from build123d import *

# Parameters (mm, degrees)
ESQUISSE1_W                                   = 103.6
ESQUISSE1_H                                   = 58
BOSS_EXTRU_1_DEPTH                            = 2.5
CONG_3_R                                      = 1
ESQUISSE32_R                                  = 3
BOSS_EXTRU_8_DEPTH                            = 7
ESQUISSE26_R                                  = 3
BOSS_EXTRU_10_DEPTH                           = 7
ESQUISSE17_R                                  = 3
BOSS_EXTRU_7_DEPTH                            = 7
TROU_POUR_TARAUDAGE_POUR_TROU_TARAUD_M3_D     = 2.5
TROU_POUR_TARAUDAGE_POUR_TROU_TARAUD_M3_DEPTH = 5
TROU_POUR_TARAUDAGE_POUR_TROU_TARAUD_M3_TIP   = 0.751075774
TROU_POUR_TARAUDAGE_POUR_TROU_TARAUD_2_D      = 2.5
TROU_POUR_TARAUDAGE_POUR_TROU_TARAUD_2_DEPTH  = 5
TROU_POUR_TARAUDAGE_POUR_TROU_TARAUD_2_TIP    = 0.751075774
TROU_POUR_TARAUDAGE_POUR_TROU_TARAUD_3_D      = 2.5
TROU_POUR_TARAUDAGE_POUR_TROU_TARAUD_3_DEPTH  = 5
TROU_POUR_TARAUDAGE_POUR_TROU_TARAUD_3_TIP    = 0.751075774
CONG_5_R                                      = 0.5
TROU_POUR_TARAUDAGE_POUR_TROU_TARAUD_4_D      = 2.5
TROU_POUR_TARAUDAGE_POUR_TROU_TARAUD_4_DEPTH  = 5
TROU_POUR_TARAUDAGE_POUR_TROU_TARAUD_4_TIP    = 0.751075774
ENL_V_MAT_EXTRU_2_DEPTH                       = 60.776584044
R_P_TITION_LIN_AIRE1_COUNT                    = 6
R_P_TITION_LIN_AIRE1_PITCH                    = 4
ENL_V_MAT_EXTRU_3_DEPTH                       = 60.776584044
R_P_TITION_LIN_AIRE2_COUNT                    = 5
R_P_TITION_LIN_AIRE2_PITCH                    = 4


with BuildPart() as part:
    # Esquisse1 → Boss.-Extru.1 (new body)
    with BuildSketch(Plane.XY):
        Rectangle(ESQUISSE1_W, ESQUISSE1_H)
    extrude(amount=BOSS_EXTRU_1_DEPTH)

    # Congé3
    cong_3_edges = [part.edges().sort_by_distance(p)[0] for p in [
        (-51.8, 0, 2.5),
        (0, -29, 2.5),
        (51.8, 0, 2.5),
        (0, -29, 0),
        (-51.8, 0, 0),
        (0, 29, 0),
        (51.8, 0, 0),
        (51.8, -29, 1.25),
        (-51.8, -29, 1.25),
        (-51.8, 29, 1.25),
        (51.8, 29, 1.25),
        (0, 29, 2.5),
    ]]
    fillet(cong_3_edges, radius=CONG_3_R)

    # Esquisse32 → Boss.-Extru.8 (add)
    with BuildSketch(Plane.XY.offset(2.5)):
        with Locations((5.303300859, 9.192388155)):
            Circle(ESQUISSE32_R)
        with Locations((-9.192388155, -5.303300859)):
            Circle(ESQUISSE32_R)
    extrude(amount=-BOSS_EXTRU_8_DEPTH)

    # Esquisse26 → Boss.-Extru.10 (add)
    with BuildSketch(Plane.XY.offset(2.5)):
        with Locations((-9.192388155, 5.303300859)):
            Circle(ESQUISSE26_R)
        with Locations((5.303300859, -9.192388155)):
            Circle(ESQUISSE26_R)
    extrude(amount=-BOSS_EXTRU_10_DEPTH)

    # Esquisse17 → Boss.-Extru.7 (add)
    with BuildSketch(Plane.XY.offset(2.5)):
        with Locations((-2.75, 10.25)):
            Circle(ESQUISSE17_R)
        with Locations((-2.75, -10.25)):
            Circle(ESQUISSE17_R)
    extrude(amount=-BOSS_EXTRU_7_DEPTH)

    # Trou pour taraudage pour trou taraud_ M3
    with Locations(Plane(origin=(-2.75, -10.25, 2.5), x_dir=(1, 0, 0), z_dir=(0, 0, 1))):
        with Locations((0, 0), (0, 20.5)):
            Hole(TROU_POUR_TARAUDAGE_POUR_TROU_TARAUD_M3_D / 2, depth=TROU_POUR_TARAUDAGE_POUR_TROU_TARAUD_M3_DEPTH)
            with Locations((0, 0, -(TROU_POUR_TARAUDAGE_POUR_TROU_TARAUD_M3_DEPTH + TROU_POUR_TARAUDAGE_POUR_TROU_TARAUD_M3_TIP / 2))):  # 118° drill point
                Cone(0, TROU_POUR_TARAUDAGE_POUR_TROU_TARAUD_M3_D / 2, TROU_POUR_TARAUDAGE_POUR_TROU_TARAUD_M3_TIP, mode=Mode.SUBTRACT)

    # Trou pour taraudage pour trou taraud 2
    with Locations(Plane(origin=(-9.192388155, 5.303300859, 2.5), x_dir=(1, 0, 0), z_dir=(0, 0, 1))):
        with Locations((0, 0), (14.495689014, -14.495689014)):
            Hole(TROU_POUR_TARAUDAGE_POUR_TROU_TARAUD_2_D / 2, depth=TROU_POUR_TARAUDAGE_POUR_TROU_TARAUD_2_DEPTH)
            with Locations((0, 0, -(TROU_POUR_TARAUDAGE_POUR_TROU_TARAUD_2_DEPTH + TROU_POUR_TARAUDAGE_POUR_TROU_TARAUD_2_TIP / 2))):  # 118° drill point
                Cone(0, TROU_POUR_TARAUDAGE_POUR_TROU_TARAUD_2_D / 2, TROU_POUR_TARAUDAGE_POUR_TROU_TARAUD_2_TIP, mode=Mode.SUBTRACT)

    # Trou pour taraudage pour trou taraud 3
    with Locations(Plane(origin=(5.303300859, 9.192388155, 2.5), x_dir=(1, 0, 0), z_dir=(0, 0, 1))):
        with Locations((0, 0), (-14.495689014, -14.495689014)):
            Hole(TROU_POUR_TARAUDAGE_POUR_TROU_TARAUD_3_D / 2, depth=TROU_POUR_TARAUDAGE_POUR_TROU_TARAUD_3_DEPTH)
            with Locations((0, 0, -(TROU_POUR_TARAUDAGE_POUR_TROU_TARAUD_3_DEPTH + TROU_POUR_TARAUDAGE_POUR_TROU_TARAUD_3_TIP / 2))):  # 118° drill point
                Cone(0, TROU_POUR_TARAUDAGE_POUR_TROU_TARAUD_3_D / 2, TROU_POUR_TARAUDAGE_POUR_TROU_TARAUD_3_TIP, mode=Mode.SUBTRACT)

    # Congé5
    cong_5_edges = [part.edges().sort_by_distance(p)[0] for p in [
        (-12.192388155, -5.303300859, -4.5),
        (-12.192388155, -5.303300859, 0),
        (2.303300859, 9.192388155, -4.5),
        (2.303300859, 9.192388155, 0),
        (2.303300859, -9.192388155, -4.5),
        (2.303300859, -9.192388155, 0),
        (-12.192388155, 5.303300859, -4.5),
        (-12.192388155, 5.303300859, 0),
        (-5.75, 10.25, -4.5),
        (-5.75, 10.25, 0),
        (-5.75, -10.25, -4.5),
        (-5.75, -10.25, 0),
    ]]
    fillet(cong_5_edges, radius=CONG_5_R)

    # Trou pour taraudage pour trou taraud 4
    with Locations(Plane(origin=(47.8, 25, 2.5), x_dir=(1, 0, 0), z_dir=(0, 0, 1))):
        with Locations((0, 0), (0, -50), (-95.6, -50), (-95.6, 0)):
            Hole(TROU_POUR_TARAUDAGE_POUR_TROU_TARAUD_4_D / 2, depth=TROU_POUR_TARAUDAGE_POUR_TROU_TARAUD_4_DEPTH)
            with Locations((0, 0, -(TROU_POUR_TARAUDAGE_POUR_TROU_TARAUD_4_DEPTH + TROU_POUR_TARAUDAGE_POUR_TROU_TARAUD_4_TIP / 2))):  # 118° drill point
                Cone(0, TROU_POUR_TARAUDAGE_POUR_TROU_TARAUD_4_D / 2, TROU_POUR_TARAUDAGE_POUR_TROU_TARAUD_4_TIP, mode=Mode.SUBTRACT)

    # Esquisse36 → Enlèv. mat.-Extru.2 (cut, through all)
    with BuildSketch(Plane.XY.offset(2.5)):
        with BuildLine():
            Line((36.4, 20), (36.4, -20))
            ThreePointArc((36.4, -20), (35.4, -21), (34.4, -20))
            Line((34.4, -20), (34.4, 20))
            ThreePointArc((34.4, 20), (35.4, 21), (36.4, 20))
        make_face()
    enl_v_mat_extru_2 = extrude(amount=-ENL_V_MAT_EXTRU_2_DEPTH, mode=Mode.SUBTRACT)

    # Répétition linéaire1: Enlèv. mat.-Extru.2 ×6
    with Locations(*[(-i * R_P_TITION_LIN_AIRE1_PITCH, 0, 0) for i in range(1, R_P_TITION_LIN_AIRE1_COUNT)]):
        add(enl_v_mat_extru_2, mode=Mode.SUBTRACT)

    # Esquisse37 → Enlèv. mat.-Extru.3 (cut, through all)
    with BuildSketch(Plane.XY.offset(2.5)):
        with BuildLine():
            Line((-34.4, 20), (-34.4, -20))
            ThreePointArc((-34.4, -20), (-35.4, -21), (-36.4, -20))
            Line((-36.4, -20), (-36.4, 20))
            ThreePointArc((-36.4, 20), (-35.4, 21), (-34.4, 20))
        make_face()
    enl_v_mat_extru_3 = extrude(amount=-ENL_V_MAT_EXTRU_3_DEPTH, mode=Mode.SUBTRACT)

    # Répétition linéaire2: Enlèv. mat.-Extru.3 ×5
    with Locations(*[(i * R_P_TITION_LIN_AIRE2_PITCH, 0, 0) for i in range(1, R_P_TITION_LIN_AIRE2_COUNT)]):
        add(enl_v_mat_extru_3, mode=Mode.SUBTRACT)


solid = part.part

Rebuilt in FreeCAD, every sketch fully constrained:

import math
import FreeCAD as App
import Part
import Sketcher
from FreeCAD import Vector
Q = App.Units.Quantity


def edges_at(feature, points):
    """Names of the edges that pass closest to the given points."""
    edges = feature.Shape.Edges
    near = lambda p: min(range(len(edges)), key=lambda i: edges[i].distToShape(Part.Vertex(*p))[0])
    return sorted({f"Edge{near(p) + 1}" for p in points})

doc = App.newDocument("Part")
params = doc.addObject("Spreadsheet::Sheet", "Params")
for row, (alias, value) in enumerate([
    ("sketch1_height", "58 mm"),
    ("sketch1_width", "103.6 mm"),
    ("pad1_length", "2.5 mm"),
    ("fillet_radius", "1 mm"),
    ("sketch2_diameter", "6 mm"),
    ("pad2_length", "7 mm"),
    ("sketch3_diameter", "6 mm"),
    ("pad3_length", "7 mm"),
    ("sketch4_diameter", "6 mm"),
    ("pad4_length", "7 mm"),
    ("sketch5_diameter", "2.5 mm"),
    ("hole_diameter", "2.5 mm"),
    ("hole_depth", "5 mm"),
    ("sketch6_diameter", "2.5 mm"),
    ("hole2_diameter", "2.5 mm"),
    ("hole2_depth", "5 mm"),
    ("sketch7_diameter", "2.5 mm"),
    ("hole3_diameter", "2.5 mm"),
    ("hole3_depth", "5 mm"),
    ("fillet2_radius", "0.5 mm"),
    ("sketch8_diameter", "2.5 mm"),
    ("hole4_diameter", "2.5 mm"),
    ("hole4_depth", "5 mm"),
    ("sketch9_radius", "1 mm"),
    ("sketch9_height", "40 mm"),
    ("linearpattern_pitch", "4 mm"),
    ("sketch10_radius", "1 mm"),
    ("sketch10_height", "40 mm"),
    ("linearpattern2_pitch", "4 mm"),
], start=1):
    params.set(f"A{row}", alias)
    params.set(f"B{row}", "=" + value)
    params.setAlias(f"B{row}", alias)

body = doc.addObject("PartDesign::Body", "Body")

sketch1 = body.newObject("Sketcher::SketchObject", "Sketch")
sketch1.AttachmentSupport = (doc.getObject("XY_Plane"), [""])
sketch1.MapMode = "FlatFace"
sketch1.addGeometry([
    Part.LineSegment(Vector(-52, 29, 0), Vector(-52, -29, 0)),
    Part.LineSegment(Vector(-52, -29, 0), Vector(52, -29, 0)),
    Part.LineSegment(Vector(52, -29, 0), Vector(52, 29, 0)),
    Part.LineSegment(Vector(52, 29, 0), Vector(-52, 29, 0)),
], False)
sketch1.addConstraint([
    Sketcher.Constraint("Coincident", 0, 2, 1, 1),
    Sketcher.Constraint("Coincident", 1, 2, 2, 1),
    Sketcher.Constraint("Coincident", 2, 2, 3, 1),
    Sketcher.Constraint("Coincident", 3, 2, 0, 1),
    Sketcher.Constraint("Vertical", 0),
    Sketcher.Constraint("Horizontal", 1),
    Sketcher.Constraint("Vertical", 2),
    Sketcher.Constraint("Horizontal", 3),
    Sketcher.Constraint("Symmetric", 0, 2, 2, 2, -1, 1),
    Sketcher.Constraint("DistanceY", 0, 2, 0, 1, Q("58 mm")),
    Sketcher.Constraint("DistanceX", 1, 1, 1, 2, Q("103.6 mm")),
])
sketch1.setExpression("Constraints[9]", "Params.sketch1_height")
sketch1.setExpression("Constraints[10]", "Params.sketch1_width")
pad1 = body.newObject("PartDesign::Pad", "Pad")
pad1.Profile = sketch1
pad1.setExpression("Length", "Params.pad1_length")
doc.recompute()

fillet = body.newObject("PartDesign::Fillet", "Fillet")
fillet.Base = (pad1, ["Edge1"])
fillet.UseAllEdges = True
fillet.setExpression("Radius", "Params.fillet_radius")

sketch2 = body.newObject("Sketcher::SketchObject", "Sketch001")
sketch2.AttachmentSupport = (doc.getObject("XY_Plane"), [""])
sketch2.MapMode = "FlatFace"
sketch2.AttachmentOffset = App.Placement(Vector(0, 0, 2.5), App.Rotation())
sketch2.addGeometry([
    Part.Circle(Vector(5.3, 9.2, 0), Vector(0, 0, 1), 3),
    Part.Circle(Vector(-9.2, -5.3, 0), Vector(0, 0, 1), 3),
], False)
sketch2.addConstraint([
    Sketcher.Constraint("Equal", 0, 1),
    Sketcher.Constraint("Diameter", 0, Q("6 mm")),
    Sketcher.Constraint("DistanceX", -1, 1, 0, 3, Q("5.303301 mm")),
    Sketcher.Constraint("DistanceY", 1, 3, -1, 1, Q("5.303301 mm")),
    Sketcher.Constraint("DistanceY", -1, 1, 0, 3, Q("9.192388 mm")),
    Sketcher.Constraint("DistanceX", 1, 3, -1, 1, Q("9.192388 mm")),
])
sketch2.setExpression("Constraints[1]", "Params.sketch2_diameter")
pad2 = body.newObject("PartDesign::Pad", "Pad001")
pad2.Profile = sketch2
pad2.setExpression("Length", "Params.pad2_length")
pad2.Reversed = True

sketch3 = body.newObject("Sketcher::SketchObject", "Sketch002")
sketch3.AttachmentSupport = (doc.getObject("XY_Plane"), [""])
sketch3.MapMode = "FlatFace"
sketch3.AttachmentOffset = App.Placement(Vector(0, 0, 2.5), App.Rotation())
sketch3.addGeometry([
    Part.Circle(Vector(-9.2, 5.3, 0), Vector(0, 0, 1), 3),
    Part.Circle(Vector(5.3, -9.2, 0), Vector(0, 0, 1), 3),
], False)
sketch3.addConstraint([
    Sketcher.Constraint("Equal", 0, 1),
    Sketcher.Constraint("Diameter", 0, Q("6 mm")),
    Sketcher.Constraint("DistanceY", -1, 1, 0, 3, Q("5.303301 mm")),
    Sketcher.Constraint("DistanceX", -1, 1, 1, 3, Q("5.303301 mm")),
    Sketcher.Constraint("DistanceX", 0, 3, -1, 1, Q("9.192388 mm")),
    Sketcher.Constraint("DistanceY", 1, 3, -1, 1, Q("9.192388 mm")),
])
sketch3.setExpression("Constraints[1]", "Params.sketch3_diameter")
pad3 = body.newObject("PartDesign::Pad", "Pad002")
pad3.Profile = sketch3
pad3.setExpression("Length", "Params.pad3_length")
pad3.Reversed = True

sketch4 = body.newObject("Sketcher::SketchObject", "Sketch003")
sketch4.AttachmentSupport = (doc.getObject("XY_Plane"), [""])
sketch4.MapMode = "FlatFace"
sketch4.AttachmentOffset = App.Placement(Vector(0, 0, 2.5), App.Rotation())
sketch4.addGeometry([
    Part.Circle(Vector(-2.8, 10.2, 0), Vector(0, 0, 1), 3),
    Part.Circle(Vector(-2.8, -10.2, 0), Vector(0, 0, 1), 3),
], False)
sketch4.addConstraint([
    Sketcher.Constraint("Equal", 0, 1),
    Sketcher.Constraint("Symmetric", 0, 3, 1, 3, -1),
    Sketcher.Constraint("Diameter", 0, Q("6 mm")),
    Sketcher.Constraint("DistanceY", 1, 3, 0, 3, Q("20.5 mm")),
    Sketcher.Constraint("DistanceX", 0, 3, -1, 1, Q("2.75 mm")),
])
sketch4.setExpression("Constraints[2]", "Params.sketch4_diameter")
pad4 = body.newObject("PartDesign::Pad", "Pad003")
pad4.Profile = sketch4
pad4.setExpression("Length", "Params.pad4_length")
pad4.Reversed = True

sketch5 = body.newObject("Sketcher::SketchObject", "Sketch004")
sketch5.AttachmentSupport = (doc.getObject("XY_Plane"), [""])
sketch5.MapMode = "FlatFace"
sketch5.AttachmentOffset = App.Placement(Vector(0, 0, 2.5), App.Rotation())
sketch5.addGeometry([
    Part.Circle(Vector(-2.8, -10.2, 0), Vector(0, 0, 1), 1.2),
    Part.Circle(Vector(-2.8, 10.2, 0), Vector(0, 0, 1), 1.2),
], False)
sketch5.addConstraint([
    Sketcher.Constraint("Equal", 0, 1),
    Sketcher.Constraint("Symmetric", 0, 3, 1, 3, -1),
    Sketcher.Constraint("Diameter", 0, Q("2.5 mm")),
    Sketcher.Constraint("DistanceY", 0, 3, 1, 3, Q("20.5 mm")),
    Sketcher.Constraint("DistanceX", 0, 3, -1, 1, Q("2.75 mm")),
])
sketch5.setExpression("Constraints[2]", "Params.sketch5_diameter")
doc.recompute()
hole = body.newObject("PartDesign::Hole", "Hole")
hole.Profile = sketch5
hole.ThreadType = "None"
hole.setExpression("Diameter", "Params.hole_diameter")
hole.DepthType = "Dimension"
hole.setExpression("Depth", "Params.hole_depth")
hole.DrillPoint = "Angled"
hole.DrillPointAngle = 118

sketch6 = body.newObject("Sketcher::SketchObject", "Sketch005")
sketch6.AttachmentSupport = (doc.getObject("XY_Plane"), [""])
sketch6.MapMode = "FlatFace"
sketch6.AttachmentOffset = App.Placement(Vector(0, 0, 2.5), App.Rotation())
sketch6.addGeometry([
    Part.Circle(Vector(-9.2, 5.3, 0), Vector(0, 0, 1), 1.2),
    Part.Circle(Vector(5.3, -9.2, 0), Vector(0, 0, 1), 1.2),
], False)
sketch6.addConstraint([
    Sketcher.Constraint("Equal", 0, 1),
    Sketcher.Constraint("Diameter", 0, Q("2.5 mm")),
    Sketcher.Constraint("DistanceY", -1, 1, 0, 3, Q("5.303301 mm")),
    Sketcher.Constraint("DistanceX", -1, 1, 1, 3, Q("5.303301 mm")),
    Sketcher.Constraint("DistanceX", 0, 3, -1, 1, Q("9.192388 mm")),
    Sketcher.Constraint("DistanceY", 1, 3, -1, 1, Q("9.192388 mm")),
])
sketch6.setExpression("Constraints[1]", "Params.sketch6_diameter")
doc.recompute()
hole2 = body.newObject("PartDesign::Hole", "Hole001")
hole2.Profile = sketch6
hole2.ThreadType = "None"
hole2.setExpression("Diameter", "Params.hole2_diameter")
hole2.DepthType = "Dimension"
hole2.setExpression("Depth", "Params.hole2_depth")
hole2.DrillPoint = "Angled"
hole2.DrillPointAngle = 118

sketch7 = body.newObject("Sketcher::SketchObject", "Sketch006")
sketch7.AttachmentSupport = (doc.getObject("XY_Plane"), [""])
sketch7.MapMode = "FlatFace"
sketch7.AttachmentOffset = App.Placement(Vector(0, 0, 2.5), App.Rotation())
sketch7.addGeometry([
    Part.Circle(Vector(5.3, 9.2, 0), Vector(0, 0, 1), 1.2),
    Part.Circle(Vector(-9.2, -5.3, 0), Vector(0, 0, 1), 1.2),
], False)
sketch7.addConstraint([
    Sketcher.Constraint("Equal", 0, 1),
    Sketcher.Constraint("Diameter", 0, Q("2.5 mm")),
    Sketcher.Constraint("DistanceX", -1, 1, 0, 3, Q("5.303301 mm")),
    Sketcher.Constraint("DistanceY", 1, 3, -1, 1, Q("5.303301 mm")),
    Sketcher.Constraint("DistanceY", -1, 1, 0, 3, Q("9.192388 mm")),
    Sketcher.Constraint("DistanceX", 1, 3, -1, 1, Q("9.192388 mm")),
])
sketch7.setExpression("Constraints[1]", "Params.sketch7_diameter")
doc.recompute()
hole3 = body.newObject("PartDesign::Hole", "Hole002")
hole3.Profile = sketch7
hole3.ThreadType = "None"
hole3.setExpression("Diameter", "Params.hole3_diameter")
hole3.DepthType = "Dimension"
hole3.setExpression("Depth", "Params.hole3_depth")
hole3.DrillPoint = "Angled"
hole3.DrillPointAngle = 118
doc.recompute()

fillet2 = body.newObject("PartDesign::Fillet", "Fillet001")
fillet2.Base = (hole3, edges_at(hole3, [
    (-12.192, -5.303, -4.5),
    (-12.192, -5.303, 0),
    (2.303, 9.192, -4.5),
    (2.303, 9.192, 0),
    (2.303, -9.192, -4.5),
    (2.303, -9.192, 0),
    (-12.192, 5.303, -4.5),
    (-12.192, 5.303, 0),
    (-5.75, 10.25, -4.5),
    (-5.75, 10.25, 0),
    (-5.75, -10.25, -4.5),
    (-5.75, -10.25, 0),
]))
fillet2.setExpression("Radius", "Params.fillet2_radius")

sketch8 = body.newObject("Sketcher::SketchObject", "Sketch007")
sketch8.AttachmentSupport = (doc.getObject("XY_Plane"), [""])
sketch8.MapMode = "FlatFace"
sketch8.AttachmentOffset = App.Placement(Vector(0, 0, 2.5), App.Rotation())
sketch8.addGeometry([
    Part.Circle(Vector(47.8, 25, 0), Vector(0, 0, 1), 1.2),
    Part.Circle(Vector(47.8, -25, 0), Vector(0, 0, 1), 1.2),
    Part.Circle(Vector(-47.8, -25, 0), Vector(0, 0, 1), 1.2),
    Part.Circle(Vector(-47.8, 25, 0), Vector(0, 0, 1), 1.2),
], False)
sketch8.addConstraint([
    Sketcher.Constraint("Equal", 0, 1),
    Sketcher.Constraint("Equal", 1, 2),
    Sketcher.Constraint("Equal", 2, 3),
    Sketcher.Constraint("Symmetric", 0, 3, 2, 3, -1, 1),
    Sketcher.Constraint("Symmetric", 1, 3, 3, 3, -1, 1),
    Sketcher.Constraint("Symmetric", 1, 3, 2, 3, -2),
    Sketcher.Constraint("Diameter", 0, Q("2.5 mm")),
    Sketcher.Constraint("DistanceY", -1, 1, 0, 3, Q("25 mm")),
    Sketcher.Constraint("DistanceX", -1, 1, 0, 3, Q("47.8 mm")),
])
sketch8.setExpression("Constraints[6]", "Params.sketch8_diameter")
doc.recompute()
hole4 = body.newObject("PartDesign::Hole", "Hole003")
hole4.Profile = sketch8
hole4.ThreadType = "None"
hole4.setExpression("Diameter", "Params.hole4_diameter")
hole4.DepthType = "Dimension"
hole4.setExpression("Depth", "Params.hole4_depth")
hole4.DrillPoint = "Angled"
hole4.DrillPointAngle = 118

sketch9 = body.newObject("Sketcher::SketchObject", "Sketch008")
sketch9.AttachmentSupport = (doc.getObject("XY_Plane"), [""])
sketch9.MapMode = "FlatFace"
sketch9.AttachmentOffset = App.Placement(Vector(0, 0, 2.5), App.Rotation())
sketch9.addGeometry([
    Part.LineSegment(Vector(36.4, -20, 0), Vector(36.4, 20, 0)),
    Part.ArcOfCircle(Part.Circle(Vector(35.4, 20, 0), Vector(0, 0, 1), 1), math.radians(0), math.radians(180)),
    Part.LineSegment(Vector(34.4, 20, 0), Vector(34.4, -20, 0)),
    Part.ArcOfCircle(Part.Circle(Vector(35.4, -20, 0), Vector(0, 0, 1), 1), math.radians(180), math.radians(360)),
], False)
sketch9.addConstraint([
    Sketcher.Constraint("Tangent", 0, 2, 1, 1),
    Sketcher.Constraint("Tangent", 1, 2, 2, 1),
    Sketcher.Constraint("Tangent", 2, 2, 3, 1),
    Sketcher.Constraint("Tangent", 3, 2, 0, 1),
    Sketcher.Constraint("Vertical", 0),
    Sketcher.Constraint("Vertical", 2),
    Sketcher.Constraint("Radius", 1, Q("1 mm")),
    Sketcher.Constraint("DistanceY", 0, 1, 0, 2, Q("40 mm")),
    Sketcher.Constraint("DistanceY", -1, 1, 1, 3, Q("20 mm")),
    Sketcher.Constraint("DistanceX", -1, 1, 1, 3, Q("35.4 mm")),
])
sketch9.setExpression("Constraints[6]", "Params.sketch9_radius")
sketch9.setExpression("Constraints[7]", "Params.sketch9_height")
pocket1 = body.newObject("PartDesign::Pocket", "Pocket")
pocket1.Profile = sketch9
pocket1.Type = "ThroughAll"
doc.recompute()

linearpattern = body.newObject("PartDesign::LinearPattern", "LinearPattern")
linearpattern.Originals = [pocket1]
linearpattern.Direction = (doc.getObject("X_Axis"), [""])
linearpattern.Mode = "offset"
linearpattern.setExpression("Offset", "Params.linearpattern_pitch")
linearpattern.Occurrences = 6
linearpattern.Reversed = True
body.Tip = linearpattern

sketch10 = body.newObject("Sketcher::SketchObject", "Sketch009")
sketch10.AttachmentSupport = (doc.getObject("XY_Plane"), [""])
sketch10.MapMode = "FlatFace"
sketch10.AttachmentOffset = App.Placement(Vector(0, 0, 2.5), App.Rotation())
sketch10.addGeometry([
    Part.LineSegment(Vector(-34.4, -20, 0), Vector(-34.4, 20, 0)),
    Part.ArcOfCircle(Part.Circle(Vector(-35.4, 20, 0), Vector(0, 0, 1), 1), math.radians(0), math.radians(180)),
    Part.LineSegment(Vector(-36.4, 20, 0), Vector(-36.4, -20, 0)),
    Part.ArcOfCircle(Part.Circle(Vector(-35.4, -20, 0), Vector(0, 0, 1), 1), math.radians(180), math.radians(360)),
], False)
sketch10.addConstraint([
    Sketcher.Constraint("Tangent", 0, 2, 1, 1),
    Sketcher.Constraint("Tangent", 1, 2, 2, 1),
    Sketcher.Constraint("Tangent", 2, 2, 3, 1),
    Sketcher.Constraint("Tangent", 3, 2, 0, 1),
    Sketcher.Constraint("Vertical", 0),
    Sketcher.Constraint("Vertical", 2),
    Sketcher.Constraint("Radius", 1, Q("1 mm")),
    Sketcher.Constraint("DistanceY", 0, 1, 0, 2, Q("40 mm")),
    Sketcher.Constraint("DistanceY", -1, 1, 1, 3, Q("20 mm")),
    Sketcher.Constraint("DistanceX", 1, 3, -1, 1, Q("35.4 mm")),
])
sketch10.setExpression("Constraints[6]", "Params.sketch10_radius")
sketch10.setExpression("Constraints[7]", "Params.sketch10_height")
pocket2 = body.newObject("PartDesign::Pocket", "Pocket001")
pocket2.Profile = sketch10
pocket2.Type = "ThroughAll"
doc.recompute()

linearpattern2 = body.newObject("PartDesign::LinearPattern", "LinearPattern001")
linearpattern2.Originals = [pocket2]
linearpattern2.Direction = (doc.getObject("X_Axis"), [""])
linearpattern2.Mode = "offset"
linearpattern2.setExpression("Offset", "Params.linearpattern2_pitch")
linearpattern2.Occurrences = 5
body.Tip = linearpattern2

doc.recompute()
